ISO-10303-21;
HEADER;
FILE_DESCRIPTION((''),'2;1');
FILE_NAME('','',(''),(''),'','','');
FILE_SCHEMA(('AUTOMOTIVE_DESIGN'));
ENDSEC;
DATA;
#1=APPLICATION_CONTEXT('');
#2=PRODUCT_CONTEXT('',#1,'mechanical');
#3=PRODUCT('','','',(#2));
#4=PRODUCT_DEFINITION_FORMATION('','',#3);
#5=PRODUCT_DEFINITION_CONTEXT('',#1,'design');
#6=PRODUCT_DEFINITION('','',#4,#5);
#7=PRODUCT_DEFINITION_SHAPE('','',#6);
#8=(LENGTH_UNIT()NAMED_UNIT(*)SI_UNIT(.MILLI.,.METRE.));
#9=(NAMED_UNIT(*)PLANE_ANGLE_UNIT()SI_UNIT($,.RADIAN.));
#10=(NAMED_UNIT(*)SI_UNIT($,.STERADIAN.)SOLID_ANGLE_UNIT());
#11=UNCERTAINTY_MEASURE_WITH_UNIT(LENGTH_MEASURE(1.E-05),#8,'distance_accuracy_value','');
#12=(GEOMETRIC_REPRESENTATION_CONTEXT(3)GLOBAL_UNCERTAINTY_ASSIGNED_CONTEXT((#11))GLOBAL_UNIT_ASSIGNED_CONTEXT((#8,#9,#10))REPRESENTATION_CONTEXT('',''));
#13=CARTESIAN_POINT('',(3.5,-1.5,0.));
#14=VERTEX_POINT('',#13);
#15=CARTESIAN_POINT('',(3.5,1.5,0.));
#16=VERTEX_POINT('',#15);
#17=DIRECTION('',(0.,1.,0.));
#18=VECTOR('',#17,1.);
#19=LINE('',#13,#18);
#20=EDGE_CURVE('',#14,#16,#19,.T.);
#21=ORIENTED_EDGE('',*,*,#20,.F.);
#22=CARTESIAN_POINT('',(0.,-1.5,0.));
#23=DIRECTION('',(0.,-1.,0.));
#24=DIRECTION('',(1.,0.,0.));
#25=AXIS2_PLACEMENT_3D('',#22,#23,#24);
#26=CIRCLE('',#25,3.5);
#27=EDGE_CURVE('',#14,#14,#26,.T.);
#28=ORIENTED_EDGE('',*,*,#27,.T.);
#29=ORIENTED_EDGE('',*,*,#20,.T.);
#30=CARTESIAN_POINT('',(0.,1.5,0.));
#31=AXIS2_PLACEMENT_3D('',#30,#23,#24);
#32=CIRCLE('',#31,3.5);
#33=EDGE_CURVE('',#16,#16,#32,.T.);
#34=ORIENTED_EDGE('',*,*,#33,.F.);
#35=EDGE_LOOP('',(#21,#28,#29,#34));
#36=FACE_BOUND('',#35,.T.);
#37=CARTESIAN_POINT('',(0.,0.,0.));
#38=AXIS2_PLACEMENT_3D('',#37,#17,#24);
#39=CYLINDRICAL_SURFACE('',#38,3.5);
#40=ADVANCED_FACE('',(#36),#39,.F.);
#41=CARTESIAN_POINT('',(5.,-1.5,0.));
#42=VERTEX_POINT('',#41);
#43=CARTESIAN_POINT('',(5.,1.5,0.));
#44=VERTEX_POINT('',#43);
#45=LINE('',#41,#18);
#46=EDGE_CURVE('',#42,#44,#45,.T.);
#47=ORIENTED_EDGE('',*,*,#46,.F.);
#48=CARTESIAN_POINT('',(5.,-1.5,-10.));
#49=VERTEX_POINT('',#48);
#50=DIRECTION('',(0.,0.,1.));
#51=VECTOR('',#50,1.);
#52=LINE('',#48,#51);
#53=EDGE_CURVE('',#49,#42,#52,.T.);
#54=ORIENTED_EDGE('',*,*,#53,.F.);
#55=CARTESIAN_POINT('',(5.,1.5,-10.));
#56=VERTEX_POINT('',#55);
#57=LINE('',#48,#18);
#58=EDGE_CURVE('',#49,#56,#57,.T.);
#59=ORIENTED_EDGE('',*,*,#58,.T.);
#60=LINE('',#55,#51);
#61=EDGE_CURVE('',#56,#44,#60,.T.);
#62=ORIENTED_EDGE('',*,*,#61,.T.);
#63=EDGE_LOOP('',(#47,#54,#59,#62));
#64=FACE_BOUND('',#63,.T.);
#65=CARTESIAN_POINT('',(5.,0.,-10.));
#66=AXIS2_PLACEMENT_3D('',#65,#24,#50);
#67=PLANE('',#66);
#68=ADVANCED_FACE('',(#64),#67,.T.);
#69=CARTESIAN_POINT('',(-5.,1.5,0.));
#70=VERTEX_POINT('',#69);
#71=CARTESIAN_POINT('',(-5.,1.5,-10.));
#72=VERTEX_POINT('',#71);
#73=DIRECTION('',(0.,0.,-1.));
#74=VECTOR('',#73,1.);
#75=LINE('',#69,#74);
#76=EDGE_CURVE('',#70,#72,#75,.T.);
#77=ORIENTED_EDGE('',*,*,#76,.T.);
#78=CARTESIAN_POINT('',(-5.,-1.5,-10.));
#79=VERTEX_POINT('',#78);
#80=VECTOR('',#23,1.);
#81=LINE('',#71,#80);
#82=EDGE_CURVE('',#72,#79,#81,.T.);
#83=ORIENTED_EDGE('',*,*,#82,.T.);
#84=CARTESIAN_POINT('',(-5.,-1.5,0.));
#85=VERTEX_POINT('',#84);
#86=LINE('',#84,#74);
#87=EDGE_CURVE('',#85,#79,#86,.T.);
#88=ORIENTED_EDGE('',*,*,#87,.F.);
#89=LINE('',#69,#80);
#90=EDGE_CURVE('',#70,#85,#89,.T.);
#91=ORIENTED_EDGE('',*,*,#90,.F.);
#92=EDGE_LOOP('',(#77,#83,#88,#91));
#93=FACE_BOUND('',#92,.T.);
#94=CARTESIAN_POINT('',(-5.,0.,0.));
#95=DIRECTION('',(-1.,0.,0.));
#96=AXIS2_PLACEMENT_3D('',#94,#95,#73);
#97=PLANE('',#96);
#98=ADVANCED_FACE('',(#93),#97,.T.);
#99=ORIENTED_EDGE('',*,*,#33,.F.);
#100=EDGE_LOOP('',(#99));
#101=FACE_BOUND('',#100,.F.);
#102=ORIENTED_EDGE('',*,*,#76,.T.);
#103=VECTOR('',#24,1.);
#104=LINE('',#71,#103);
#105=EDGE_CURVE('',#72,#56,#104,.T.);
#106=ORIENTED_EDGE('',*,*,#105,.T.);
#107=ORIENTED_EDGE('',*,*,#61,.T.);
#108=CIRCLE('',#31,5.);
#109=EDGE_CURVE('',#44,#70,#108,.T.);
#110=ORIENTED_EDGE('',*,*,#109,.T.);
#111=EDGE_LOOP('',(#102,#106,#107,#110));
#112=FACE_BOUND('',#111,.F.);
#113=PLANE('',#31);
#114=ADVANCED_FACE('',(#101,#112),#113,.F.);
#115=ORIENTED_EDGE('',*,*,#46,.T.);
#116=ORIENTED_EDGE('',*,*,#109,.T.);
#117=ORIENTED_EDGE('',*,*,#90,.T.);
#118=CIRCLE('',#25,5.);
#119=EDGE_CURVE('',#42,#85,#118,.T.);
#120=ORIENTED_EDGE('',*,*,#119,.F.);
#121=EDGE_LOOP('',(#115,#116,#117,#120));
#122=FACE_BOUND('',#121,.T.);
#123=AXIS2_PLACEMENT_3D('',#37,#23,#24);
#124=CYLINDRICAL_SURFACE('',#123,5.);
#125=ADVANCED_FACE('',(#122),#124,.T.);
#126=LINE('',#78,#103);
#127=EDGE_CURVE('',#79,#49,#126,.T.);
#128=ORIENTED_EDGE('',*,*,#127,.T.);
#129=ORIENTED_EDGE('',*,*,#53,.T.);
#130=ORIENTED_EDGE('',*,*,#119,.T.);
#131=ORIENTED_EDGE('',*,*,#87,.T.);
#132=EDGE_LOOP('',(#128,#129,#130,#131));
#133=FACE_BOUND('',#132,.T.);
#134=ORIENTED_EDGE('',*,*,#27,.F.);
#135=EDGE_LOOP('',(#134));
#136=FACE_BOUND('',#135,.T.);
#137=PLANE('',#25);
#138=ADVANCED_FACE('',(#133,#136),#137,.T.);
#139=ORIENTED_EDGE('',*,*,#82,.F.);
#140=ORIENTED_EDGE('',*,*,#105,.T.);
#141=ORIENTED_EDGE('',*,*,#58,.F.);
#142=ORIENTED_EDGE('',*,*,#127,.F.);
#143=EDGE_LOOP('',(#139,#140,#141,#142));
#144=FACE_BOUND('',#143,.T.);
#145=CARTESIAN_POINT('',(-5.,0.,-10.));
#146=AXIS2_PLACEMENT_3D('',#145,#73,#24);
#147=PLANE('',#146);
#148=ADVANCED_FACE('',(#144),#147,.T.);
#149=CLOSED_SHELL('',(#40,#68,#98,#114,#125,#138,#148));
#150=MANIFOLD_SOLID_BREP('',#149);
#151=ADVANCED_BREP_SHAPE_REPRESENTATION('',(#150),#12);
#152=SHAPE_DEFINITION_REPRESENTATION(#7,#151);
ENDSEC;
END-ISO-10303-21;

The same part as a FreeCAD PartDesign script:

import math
import FreeCAD as App
import Part
import Sketcher

V = App.Vector
Q = App.Units.Quantity

doc = App.newDocument("Part")
body = doc.addObject("PartDesign::Body", "Body")

# Sketch on XZ plane
sketch1 = body.newObject("Sketcher::SketchObject", "Sketch")
sketch1.AttachmentSupport = (doc.getObject("XZ_Plane"), [""])
sketch1.MapMode = "FlatFace"
sketch1.addGeometry([
    Part.ArcOfCircle(Part.Circle(V(0, 0, 0), V(0, 0, 1), 5), math.radians(0), math.radians(180)),  # 0
    Part.LineSegment(V(-5, 0, 0), V(-5, -10, 0)),  # 1
    Part.LineSegment(V(-5, -10, 0), V(5, -10, 0)),  # 2
    Part.LineSegment(V(5, -10, 0), V(5, 0, 0)),  # 3
    Part.Circle(V(0, 0, 0), V(0, 0, 1), 3.5),  # 4
], False)
sketch1.addConstraint([
    Sketcher.Constraint("Tangent", 0, 2, 1, 1),
    Sketcher.Constraint("Coincident", 1, 2, 2, 1),
    Sketcher.Constraint("Coincident", 2, 2, 3, 1),
    Sketcher.Constraint("Tangent", 3, 2, 0, 1),
    Sketcher.Constraint("Vertical", 1),
    Sketcher.Constraint("Horizontal", 2),
    Sketcher.Constraint("Vertical", 3),
    Sketcher.Constraint("Coincident", 0, 3, -1, 1),
    Sketcher.Constraint("Coincident", 4, 3, -1, 1),
    Sketcher.Constraint("Equal", 2, 1),
    Sketcher.Constraint("Diameter", 4, Q("7 mm")),
    Sketcher.Constraint("Radius", 0, Q("5 mm")),
])
pad1 = body.newObject("PartDesign::Pad", "Pad")
pad1.Profile = sketch1
pad1.Length = 3
pad1.Midplane = True

doc.recompute()
